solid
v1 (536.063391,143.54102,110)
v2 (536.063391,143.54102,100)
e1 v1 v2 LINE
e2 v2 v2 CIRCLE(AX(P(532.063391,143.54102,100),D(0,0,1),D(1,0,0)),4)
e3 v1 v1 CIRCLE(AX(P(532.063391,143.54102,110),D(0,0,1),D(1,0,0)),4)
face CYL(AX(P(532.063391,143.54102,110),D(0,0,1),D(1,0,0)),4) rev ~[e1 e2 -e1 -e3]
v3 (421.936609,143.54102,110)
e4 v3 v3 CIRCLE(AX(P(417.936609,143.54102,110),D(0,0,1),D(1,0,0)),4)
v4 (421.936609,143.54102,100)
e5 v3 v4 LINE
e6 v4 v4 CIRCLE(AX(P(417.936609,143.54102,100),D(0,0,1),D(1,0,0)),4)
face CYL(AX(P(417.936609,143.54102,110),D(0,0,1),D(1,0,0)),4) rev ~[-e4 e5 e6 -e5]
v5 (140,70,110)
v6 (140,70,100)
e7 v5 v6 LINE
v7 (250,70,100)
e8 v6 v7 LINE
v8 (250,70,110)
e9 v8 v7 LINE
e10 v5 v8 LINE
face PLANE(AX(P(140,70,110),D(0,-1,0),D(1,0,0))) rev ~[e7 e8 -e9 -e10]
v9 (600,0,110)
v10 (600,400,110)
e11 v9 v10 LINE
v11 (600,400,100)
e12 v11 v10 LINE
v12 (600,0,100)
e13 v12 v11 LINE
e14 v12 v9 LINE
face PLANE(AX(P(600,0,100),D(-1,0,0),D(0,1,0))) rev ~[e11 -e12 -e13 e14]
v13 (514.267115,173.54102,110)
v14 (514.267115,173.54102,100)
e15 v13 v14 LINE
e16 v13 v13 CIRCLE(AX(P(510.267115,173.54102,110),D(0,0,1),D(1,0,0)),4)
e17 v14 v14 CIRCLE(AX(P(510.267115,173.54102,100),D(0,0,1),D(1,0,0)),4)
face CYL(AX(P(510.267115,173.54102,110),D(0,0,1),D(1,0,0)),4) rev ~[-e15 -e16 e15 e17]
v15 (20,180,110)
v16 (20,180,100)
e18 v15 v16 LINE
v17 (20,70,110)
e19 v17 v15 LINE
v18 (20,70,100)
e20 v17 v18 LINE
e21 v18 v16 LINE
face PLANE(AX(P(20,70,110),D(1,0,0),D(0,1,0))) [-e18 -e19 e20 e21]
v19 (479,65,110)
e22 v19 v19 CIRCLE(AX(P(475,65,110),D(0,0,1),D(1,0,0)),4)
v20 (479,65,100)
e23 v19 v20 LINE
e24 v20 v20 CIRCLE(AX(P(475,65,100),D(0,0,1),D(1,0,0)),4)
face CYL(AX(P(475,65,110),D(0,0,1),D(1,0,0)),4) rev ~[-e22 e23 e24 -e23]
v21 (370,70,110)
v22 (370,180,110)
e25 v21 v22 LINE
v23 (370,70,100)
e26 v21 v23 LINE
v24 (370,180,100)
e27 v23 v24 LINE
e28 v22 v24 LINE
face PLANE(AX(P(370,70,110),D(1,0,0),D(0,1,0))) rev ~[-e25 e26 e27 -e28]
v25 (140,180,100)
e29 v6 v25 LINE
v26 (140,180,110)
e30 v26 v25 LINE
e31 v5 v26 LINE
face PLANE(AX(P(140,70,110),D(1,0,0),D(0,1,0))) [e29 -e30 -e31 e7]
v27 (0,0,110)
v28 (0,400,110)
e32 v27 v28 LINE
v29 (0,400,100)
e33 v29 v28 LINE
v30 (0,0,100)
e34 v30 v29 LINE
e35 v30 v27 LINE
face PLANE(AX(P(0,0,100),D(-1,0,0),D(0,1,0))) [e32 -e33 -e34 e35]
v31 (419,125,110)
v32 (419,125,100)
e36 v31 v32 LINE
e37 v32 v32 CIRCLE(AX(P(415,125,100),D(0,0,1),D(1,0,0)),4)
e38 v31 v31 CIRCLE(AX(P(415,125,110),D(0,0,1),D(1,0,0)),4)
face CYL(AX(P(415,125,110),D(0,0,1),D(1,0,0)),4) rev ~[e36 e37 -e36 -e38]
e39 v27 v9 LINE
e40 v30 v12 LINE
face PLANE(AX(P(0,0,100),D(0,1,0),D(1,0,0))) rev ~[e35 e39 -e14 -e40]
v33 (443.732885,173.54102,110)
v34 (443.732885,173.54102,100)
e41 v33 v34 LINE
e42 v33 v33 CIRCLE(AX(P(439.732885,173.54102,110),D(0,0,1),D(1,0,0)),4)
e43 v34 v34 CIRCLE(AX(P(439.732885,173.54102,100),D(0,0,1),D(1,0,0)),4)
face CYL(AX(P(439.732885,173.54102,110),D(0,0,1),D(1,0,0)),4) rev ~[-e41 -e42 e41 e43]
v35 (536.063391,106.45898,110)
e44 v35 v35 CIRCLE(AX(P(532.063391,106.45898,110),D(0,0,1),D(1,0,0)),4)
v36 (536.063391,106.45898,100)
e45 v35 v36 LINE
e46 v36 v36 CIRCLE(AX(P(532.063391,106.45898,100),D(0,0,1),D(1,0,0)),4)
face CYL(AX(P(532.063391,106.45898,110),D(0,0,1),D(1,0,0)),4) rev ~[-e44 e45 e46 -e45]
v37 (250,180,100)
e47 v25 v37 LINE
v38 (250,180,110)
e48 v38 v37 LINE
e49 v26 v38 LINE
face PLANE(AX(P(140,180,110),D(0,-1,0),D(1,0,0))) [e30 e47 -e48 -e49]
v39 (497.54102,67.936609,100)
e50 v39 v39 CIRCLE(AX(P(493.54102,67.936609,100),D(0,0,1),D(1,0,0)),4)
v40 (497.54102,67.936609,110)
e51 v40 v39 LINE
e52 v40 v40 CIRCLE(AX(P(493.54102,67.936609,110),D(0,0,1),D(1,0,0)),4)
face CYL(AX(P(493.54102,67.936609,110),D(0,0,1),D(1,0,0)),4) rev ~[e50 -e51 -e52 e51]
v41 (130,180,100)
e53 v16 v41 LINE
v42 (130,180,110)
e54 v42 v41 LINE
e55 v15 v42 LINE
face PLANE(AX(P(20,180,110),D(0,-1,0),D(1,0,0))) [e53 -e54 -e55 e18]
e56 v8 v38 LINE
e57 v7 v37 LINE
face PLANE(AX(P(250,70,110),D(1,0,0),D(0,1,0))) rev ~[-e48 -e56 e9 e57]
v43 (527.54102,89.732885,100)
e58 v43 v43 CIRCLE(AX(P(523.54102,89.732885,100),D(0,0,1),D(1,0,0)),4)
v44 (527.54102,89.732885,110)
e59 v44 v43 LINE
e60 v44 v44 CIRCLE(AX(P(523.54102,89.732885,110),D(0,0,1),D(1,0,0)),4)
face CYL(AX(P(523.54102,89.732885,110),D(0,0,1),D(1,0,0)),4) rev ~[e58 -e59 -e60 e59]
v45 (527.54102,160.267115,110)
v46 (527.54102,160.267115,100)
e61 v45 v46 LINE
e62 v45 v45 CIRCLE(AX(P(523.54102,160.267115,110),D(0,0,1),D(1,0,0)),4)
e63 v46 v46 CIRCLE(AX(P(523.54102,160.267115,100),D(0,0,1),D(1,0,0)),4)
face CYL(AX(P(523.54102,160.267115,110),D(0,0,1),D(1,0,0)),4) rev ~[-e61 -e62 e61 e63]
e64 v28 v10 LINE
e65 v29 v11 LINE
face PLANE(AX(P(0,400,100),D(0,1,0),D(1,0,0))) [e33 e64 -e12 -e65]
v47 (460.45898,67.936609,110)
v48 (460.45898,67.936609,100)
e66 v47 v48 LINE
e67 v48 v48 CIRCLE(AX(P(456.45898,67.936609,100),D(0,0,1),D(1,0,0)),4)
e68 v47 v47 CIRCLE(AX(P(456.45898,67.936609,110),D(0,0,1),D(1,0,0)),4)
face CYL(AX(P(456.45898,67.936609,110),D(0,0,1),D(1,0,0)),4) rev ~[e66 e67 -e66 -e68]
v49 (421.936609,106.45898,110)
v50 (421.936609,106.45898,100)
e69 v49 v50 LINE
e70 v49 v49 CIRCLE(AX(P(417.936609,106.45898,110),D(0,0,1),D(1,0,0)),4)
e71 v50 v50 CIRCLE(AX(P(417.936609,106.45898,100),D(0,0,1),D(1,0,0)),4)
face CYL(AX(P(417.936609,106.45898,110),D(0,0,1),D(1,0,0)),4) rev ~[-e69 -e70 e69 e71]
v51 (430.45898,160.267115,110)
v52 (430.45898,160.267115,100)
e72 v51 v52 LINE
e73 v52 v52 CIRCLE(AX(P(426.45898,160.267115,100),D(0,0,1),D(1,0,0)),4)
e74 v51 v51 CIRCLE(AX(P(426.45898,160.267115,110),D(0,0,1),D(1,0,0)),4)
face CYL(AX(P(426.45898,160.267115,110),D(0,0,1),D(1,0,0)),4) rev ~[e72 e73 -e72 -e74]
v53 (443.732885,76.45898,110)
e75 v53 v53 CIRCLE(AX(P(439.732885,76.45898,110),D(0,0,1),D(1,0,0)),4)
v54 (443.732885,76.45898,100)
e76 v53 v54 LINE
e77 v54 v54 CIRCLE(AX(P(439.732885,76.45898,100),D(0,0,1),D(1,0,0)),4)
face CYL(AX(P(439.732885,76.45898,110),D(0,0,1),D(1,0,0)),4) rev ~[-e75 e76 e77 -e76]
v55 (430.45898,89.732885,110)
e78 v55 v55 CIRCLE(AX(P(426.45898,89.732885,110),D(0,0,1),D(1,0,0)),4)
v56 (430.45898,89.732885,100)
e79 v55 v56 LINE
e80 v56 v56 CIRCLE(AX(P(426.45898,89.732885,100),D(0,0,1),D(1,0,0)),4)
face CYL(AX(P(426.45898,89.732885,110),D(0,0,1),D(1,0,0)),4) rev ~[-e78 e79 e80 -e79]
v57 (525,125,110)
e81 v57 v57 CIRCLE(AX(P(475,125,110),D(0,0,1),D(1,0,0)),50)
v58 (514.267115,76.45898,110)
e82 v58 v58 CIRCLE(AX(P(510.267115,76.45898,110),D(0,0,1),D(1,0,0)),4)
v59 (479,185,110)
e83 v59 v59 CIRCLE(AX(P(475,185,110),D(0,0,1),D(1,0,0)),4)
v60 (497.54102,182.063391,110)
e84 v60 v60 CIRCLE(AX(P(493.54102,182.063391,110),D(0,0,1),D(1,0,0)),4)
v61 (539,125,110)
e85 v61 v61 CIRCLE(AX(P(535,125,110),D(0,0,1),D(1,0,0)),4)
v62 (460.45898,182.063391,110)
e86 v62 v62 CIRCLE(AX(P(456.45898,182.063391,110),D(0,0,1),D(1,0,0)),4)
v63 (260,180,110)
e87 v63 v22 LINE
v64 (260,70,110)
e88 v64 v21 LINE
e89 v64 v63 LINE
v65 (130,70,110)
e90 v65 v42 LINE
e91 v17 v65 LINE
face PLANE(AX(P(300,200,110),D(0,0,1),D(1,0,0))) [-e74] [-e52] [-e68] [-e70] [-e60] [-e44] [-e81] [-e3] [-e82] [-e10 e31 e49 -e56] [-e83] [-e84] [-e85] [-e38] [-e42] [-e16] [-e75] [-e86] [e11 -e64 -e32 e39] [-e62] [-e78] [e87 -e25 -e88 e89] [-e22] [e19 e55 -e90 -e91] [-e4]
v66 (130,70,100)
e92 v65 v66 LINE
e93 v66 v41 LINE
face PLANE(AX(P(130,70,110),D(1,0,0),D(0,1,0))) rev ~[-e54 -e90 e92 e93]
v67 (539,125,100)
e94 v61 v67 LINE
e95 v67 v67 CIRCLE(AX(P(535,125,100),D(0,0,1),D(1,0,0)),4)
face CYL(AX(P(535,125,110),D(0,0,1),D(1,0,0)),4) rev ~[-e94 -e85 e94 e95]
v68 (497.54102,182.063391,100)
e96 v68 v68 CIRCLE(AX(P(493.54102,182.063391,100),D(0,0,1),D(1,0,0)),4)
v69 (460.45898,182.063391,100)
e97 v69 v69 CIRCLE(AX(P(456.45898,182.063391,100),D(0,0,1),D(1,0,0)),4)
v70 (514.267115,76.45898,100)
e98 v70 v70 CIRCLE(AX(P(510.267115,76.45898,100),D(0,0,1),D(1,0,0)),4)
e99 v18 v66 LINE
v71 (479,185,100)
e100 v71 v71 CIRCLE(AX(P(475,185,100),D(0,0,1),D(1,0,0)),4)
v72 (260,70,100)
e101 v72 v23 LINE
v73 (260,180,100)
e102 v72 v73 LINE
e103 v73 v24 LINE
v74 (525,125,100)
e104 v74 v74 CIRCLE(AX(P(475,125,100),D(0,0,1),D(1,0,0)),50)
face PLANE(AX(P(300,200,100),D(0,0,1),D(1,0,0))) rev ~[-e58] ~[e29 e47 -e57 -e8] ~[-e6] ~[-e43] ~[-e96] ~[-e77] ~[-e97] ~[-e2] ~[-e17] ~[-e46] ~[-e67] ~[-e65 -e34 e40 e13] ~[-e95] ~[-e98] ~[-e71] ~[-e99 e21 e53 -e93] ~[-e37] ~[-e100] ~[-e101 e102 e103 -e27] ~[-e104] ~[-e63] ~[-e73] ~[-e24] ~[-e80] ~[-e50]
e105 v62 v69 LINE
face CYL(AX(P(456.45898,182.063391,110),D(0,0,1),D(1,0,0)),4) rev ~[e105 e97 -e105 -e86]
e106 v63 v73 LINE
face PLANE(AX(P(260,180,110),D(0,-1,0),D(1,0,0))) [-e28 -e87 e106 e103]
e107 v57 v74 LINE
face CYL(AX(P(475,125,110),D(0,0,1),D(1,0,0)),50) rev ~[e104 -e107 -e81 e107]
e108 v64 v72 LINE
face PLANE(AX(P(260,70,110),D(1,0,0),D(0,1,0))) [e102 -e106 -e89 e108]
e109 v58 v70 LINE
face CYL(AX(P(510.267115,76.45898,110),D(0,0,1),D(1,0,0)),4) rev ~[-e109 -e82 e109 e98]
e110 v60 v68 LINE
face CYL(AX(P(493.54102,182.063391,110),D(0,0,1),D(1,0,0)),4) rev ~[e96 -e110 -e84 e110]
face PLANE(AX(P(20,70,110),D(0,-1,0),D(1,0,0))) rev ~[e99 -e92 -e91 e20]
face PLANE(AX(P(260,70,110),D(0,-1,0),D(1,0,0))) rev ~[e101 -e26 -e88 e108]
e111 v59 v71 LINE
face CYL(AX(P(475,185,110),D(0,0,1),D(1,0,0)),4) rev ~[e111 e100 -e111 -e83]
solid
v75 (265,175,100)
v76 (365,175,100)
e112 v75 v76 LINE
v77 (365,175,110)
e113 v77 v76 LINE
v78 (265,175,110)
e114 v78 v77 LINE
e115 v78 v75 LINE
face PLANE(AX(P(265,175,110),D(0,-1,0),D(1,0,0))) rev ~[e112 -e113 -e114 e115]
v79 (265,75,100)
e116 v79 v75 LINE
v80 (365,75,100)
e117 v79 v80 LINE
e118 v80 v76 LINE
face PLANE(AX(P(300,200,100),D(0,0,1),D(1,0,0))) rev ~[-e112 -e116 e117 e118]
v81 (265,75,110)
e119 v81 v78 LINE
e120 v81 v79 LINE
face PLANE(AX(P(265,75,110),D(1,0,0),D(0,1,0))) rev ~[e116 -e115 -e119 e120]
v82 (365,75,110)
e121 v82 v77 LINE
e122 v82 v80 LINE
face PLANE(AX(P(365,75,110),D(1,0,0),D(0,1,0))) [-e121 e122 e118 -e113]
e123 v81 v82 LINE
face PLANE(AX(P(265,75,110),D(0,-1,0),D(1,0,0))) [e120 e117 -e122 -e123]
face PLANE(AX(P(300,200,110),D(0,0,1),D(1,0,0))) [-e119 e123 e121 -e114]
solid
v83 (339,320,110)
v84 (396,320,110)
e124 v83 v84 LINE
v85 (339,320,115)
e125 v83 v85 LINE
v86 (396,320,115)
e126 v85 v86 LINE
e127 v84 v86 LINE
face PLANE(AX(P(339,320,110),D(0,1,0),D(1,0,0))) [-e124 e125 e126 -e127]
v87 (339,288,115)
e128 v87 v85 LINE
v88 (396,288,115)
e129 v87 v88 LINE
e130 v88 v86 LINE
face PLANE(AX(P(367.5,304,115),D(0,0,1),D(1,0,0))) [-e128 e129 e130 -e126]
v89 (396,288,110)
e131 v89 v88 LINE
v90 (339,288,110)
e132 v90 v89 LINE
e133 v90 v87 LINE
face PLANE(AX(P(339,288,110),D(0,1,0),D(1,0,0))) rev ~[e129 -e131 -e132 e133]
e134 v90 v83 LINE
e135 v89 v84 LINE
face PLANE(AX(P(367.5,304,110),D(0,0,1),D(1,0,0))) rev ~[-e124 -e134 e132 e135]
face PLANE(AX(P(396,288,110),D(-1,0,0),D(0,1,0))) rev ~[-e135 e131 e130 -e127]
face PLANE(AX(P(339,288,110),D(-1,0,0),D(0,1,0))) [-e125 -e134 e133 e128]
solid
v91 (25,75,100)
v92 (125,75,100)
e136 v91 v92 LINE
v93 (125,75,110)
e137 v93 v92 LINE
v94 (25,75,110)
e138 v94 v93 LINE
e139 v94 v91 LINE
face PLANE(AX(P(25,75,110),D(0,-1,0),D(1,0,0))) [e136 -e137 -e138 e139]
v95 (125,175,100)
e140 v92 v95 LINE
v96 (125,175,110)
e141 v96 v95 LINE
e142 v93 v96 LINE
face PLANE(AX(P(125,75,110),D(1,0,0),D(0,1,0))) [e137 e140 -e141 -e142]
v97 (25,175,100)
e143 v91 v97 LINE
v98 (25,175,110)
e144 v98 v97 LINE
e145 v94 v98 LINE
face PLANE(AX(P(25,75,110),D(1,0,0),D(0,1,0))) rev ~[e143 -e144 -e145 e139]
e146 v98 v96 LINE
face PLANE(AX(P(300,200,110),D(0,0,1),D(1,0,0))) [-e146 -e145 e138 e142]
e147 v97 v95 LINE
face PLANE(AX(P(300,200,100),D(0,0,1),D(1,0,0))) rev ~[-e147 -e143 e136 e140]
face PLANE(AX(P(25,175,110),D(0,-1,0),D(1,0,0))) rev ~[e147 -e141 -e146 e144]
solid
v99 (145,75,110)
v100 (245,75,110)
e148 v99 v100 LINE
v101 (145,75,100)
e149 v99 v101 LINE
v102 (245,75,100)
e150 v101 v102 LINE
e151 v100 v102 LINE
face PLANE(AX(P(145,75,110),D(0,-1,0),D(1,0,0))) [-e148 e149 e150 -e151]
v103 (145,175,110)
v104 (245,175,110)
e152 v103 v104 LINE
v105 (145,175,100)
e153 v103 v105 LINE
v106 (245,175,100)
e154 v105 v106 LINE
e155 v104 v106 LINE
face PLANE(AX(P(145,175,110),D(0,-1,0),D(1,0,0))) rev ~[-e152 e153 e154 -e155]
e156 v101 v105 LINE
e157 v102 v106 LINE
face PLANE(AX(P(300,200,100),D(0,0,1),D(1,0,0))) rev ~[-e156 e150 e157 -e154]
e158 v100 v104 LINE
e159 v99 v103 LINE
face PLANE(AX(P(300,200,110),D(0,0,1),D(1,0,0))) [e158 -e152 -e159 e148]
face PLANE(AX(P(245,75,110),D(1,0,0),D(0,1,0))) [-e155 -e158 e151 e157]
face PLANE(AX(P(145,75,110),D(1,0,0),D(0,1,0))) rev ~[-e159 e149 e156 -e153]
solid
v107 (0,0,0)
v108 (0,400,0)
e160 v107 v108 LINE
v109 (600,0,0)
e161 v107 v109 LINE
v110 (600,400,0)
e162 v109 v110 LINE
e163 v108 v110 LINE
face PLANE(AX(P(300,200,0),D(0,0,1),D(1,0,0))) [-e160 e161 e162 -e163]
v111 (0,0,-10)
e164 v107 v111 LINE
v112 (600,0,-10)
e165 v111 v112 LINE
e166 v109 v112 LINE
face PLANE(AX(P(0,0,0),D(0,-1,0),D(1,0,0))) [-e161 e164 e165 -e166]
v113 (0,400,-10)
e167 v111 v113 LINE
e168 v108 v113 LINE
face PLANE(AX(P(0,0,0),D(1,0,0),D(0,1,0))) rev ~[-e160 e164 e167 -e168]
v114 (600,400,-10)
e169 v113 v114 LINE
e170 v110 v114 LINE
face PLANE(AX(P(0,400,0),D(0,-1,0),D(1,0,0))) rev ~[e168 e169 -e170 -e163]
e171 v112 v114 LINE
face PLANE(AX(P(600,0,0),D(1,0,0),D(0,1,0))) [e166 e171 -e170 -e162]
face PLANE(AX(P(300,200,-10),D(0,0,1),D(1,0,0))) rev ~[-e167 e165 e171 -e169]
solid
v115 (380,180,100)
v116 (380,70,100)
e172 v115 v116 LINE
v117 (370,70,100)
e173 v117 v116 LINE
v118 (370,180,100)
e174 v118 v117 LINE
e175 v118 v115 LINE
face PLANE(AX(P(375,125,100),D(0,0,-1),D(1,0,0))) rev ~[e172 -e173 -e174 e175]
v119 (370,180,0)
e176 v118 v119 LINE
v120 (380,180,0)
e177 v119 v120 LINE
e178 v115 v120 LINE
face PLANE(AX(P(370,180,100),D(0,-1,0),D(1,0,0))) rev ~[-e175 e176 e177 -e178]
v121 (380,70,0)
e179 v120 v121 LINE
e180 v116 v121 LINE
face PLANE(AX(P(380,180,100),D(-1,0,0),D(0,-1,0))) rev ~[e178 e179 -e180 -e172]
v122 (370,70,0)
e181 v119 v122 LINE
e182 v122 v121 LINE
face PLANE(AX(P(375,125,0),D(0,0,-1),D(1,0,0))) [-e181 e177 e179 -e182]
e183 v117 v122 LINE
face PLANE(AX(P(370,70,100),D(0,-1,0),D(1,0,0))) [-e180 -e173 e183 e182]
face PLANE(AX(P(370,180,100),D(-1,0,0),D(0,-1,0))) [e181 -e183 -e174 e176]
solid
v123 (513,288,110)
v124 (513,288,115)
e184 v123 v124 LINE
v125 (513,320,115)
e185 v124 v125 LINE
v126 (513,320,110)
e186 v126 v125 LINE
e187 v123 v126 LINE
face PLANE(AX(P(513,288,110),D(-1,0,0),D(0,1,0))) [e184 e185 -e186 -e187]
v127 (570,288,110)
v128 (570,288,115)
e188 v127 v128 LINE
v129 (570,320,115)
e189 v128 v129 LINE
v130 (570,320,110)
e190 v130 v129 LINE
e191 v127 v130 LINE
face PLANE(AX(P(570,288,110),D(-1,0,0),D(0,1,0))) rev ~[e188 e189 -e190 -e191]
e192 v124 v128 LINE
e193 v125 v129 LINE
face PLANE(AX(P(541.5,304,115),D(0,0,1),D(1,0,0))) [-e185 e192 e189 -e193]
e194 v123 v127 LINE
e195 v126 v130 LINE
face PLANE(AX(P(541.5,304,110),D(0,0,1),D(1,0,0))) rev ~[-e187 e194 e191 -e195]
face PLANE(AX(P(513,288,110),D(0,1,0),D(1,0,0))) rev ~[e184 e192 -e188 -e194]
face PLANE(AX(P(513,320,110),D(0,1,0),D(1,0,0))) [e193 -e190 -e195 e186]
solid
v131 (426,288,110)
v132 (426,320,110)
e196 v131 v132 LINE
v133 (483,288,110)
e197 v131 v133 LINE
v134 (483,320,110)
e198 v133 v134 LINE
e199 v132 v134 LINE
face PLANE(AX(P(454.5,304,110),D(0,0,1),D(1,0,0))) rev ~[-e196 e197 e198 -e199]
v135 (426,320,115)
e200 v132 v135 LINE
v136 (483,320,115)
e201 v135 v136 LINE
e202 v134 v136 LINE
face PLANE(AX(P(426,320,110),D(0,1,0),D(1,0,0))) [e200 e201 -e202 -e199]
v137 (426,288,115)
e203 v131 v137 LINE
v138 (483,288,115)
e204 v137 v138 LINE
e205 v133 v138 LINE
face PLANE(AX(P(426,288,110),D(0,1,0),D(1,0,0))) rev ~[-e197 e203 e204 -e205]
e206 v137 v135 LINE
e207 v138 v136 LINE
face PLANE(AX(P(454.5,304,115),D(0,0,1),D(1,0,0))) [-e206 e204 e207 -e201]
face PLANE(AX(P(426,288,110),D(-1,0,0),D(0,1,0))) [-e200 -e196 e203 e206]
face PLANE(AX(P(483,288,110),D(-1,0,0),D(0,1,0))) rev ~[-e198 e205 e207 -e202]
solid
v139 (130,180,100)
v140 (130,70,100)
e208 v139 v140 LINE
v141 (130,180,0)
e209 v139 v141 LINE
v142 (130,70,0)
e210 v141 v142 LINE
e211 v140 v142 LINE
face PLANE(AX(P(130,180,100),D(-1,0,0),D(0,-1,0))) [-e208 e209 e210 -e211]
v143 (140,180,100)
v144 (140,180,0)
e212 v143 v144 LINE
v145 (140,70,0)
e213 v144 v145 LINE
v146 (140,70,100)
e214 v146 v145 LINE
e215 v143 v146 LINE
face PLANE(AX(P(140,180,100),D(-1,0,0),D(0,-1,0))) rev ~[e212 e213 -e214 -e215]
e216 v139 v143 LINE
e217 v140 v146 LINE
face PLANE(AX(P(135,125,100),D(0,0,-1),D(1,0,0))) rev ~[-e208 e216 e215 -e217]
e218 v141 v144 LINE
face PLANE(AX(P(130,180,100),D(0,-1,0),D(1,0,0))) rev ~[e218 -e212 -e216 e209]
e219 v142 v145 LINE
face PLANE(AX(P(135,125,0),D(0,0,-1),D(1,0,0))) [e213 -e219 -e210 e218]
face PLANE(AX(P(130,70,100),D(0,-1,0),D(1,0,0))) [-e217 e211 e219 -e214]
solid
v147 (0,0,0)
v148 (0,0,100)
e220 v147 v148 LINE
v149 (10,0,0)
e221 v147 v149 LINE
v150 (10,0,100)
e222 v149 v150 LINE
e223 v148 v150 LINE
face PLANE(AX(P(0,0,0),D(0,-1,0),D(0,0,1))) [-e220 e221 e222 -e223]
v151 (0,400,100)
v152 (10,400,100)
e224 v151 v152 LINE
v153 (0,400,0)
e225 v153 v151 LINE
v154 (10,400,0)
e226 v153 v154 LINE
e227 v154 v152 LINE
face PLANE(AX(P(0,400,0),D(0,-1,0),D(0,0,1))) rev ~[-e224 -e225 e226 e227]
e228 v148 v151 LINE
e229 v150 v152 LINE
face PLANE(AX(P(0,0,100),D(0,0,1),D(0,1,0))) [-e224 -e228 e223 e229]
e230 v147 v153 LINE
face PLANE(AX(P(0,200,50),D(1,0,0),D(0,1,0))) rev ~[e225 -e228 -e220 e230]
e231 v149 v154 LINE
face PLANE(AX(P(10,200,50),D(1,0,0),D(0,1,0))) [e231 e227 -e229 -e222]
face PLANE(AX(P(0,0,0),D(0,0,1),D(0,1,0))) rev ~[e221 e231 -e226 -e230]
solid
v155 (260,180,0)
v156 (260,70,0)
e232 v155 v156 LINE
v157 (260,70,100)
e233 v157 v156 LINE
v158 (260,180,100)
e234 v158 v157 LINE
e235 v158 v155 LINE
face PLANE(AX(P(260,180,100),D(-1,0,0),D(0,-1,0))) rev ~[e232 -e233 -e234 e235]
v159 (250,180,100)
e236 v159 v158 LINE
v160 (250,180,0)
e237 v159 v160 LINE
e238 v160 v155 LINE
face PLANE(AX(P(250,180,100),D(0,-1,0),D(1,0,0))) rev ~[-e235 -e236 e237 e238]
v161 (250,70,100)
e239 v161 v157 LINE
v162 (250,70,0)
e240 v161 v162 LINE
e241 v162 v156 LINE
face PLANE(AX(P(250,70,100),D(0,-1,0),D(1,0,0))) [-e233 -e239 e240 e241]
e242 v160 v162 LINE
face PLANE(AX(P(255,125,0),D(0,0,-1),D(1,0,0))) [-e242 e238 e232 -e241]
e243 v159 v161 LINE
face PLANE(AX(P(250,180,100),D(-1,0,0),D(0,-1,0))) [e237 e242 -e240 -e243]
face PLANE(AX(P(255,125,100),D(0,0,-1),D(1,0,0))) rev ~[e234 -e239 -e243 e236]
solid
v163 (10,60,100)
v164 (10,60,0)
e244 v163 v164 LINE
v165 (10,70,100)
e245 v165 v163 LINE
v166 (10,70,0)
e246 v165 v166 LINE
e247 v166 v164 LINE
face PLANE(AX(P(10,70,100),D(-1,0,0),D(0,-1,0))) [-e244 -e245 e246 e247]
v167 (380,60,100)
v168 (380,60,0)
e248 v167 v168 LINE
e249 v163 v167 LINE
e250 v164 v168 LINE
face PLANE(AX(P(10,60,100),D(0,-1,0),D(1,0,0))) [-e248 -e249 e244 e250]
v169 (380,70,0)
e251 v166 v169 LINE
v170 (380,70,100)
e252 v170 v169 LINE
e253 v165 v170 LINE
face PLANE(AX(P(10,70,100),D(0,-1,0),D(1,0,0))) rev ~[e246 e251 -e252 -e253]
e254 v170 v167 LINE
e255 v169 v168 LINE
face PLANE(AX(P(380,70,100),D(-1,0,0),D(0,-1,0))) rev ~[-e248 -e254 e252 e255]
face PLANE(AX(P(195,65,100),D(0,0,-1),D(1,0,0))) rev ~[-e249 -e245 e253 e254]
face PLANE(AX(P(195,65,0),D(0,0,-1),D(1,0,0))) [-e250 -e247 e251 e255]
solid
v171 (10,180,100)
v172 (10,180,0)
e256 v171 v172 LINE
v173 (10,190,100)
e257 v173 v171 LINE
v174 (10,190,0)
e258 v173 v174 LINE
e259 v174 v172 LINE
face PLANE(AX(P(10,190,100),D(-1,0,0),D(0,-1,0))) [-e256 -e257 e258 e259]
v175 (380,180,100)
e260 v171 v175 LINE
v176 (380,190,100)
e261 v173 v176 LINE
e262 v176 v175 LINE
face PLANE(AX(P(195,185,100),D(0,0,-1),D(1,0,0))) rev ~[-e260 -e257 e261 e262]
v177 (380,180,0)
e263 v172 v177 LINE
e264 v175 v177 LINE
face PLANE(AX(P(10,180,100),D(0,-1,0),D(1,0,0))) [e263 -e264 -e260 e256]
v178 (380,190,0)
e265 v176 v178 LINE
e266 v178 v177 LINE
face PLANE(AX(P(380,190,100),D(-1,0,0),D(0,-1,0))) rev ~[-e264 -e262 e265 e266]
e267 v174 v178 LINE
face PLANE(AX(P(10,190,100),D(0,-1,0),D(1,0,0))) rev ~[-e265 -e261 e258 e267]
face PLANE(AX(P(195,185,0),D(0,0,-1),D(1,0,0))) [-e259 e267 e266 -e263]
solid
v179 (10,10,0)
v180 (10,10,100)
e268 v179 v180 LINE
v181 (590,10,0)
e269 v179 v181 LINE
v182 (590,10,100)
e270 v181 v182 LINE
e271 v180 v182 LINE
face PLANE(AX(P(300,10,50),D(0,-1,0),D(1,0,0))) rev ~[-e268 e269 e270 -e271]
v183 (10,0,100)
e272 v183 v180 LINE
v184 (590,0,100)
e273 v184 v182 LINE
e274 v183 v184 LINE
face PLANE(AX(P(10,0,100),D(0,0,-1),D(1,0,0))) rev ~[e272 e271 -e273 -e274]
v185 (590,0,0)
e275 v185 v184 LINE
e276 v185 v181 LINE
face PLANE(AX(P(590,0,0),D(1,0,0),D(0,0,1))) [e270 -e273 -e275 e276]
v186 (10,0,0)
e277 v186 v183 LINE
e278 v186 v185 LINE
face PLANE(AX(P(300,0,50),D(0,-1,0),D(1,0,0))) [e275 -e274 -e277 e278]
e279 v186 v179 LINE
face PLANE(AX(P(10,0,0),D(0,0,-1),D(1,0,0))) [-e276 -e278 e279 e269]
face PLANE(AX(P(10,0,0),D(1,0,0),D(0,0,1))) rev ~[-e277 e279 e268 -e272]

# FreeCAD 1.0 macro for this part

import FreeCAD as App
import Part
import Sketcher

V = App.Vector
Q = App.Units.Quantity

doc = App.newDocument("Part")
body = doc.addObject("PartDesign::Body", "Body")

sketch1 = body.newObject("Sketcher::SketchObject", "Sketch")
sketch1.AttachmentSupport = (doc.getObject("XY_Plane"), [""])
sketch1.MapMode = "FlatFace"
sketch1.addGeometry([
    Part.LineSegment(V(0, 400, 0), V(0, 0, 0)),
    Part.LineSegment(V(0, 0, 0), V(600, 0, 0)),
    Part.LineSegment(V(600, 0, 0), V(600, 400, 0)),
    Part.LineSegment(V(600, 400, 0), V(0, 400, 0)),
], False)
sketch1.addConstraint([
    Sketcher.Constraint("Coincident", 0, 2, 1, 1),
    Sketcher.Constraint("Coincident", 1, 2, 2, 1),
    Sketcher.Constraint("Coincident", 2, 2, 3, 1),
    Sketcher.Constraint("Coincident", 3, 2, 0, 1),
    Sketcher.Constraint("Vertical", 0),
    Sketcher.Constraint("Horizontal", 1),
    Sketcher.Constraint("Vertical", 2),
    Sketcher.Constraint("Horizontal", 3),
    Sketcher.Constraint("Coincident", 0, 2, -1, 1),
    Sketcher.Constraint("DistanceX", 1, 1, 1, 2, Q("600 mm")),
    Sketcher.Constraint("DistanceY", 0, 2, 0, 1, Q("400 mm")),
])
pad1 = body.newObject("PartDesign::Pad", "Pad")
pad1.Profile = sketch1
pad1.Length = 10
pad1.Reversed = True
body2 = doc.addObject("PartDesign::Body", "Body001")

sketch2 = body2.newObject("Sketcher::SketchObject", "Sketch001")
sketch2.AttachmentSupport = (doc.getObject("YZ_Plane001"), [""])
sketch2.MapMode = "FlatFace"
sketch2.addGeometry([
    Part.LineSegment(V(0, 100, 0), V(0, 0, 0)),
    Part.LineSegment(V(0, 0, 0), V(400, 0, 0)),
    Part.LineSegment(V(400, 0, 0), V(400, 100, 0)),
    Part.LineSegment(V(400, 100, 0), V(0, 100, 0)),
], False)
sketch2.addConstraint([
    Sketcher.Constraint("Coincident", 0, 2, 1, 1),
    Sketcher.Constraint("Coincident", 1, 2, 2, 1),
    Sketcher.Constraint("Coincident", 2, 2, 3, 1),
    Sketcher.Constraint("Coincident", 3, 2, 0, 1),
    Sketcher.Constraint("Vertical", 0),
    Sketcher.Constraint("Horizontal", 1),
    Sketcher.Constraint("Vertical", 2),
    Sketcher.Constraint("Horizontal", 3),
    Sketcher.Constraint("Coincident", 0, 2, -1, 1),
    Sketcher.Constraint("DistanceX", 1, 1, 1, 2, Q("400 mm")),
    Sketcher.Constraint("DistanceY", 0, 2, 0, 1, Q("100 mm")),
])
pad2 = body2.newObject("PartDesign::Pad", "Pad001")
pad2.Profile = sketch2
pad2.Length = 10
body3 = doc.addObject("PartDesign::Body", "Body002")

sketch3 = body3.newObject("Sketcher::SketchObject", "Sketch002")
sketch3.AttachmentSupport = (doc.getObject("XZ_Plane002"), [""])
sketch3.MapMode = "FlatFace"
sketch3.addGeometry([
    Part.LineSegment(V(10, 100, 0), V(10, 0, 0)),
    Part.LineSegment(V(10, 0, 0), V(590, 0, 0)),
    Part.LineSegment(V(590, 0, 0), V(590, 100, 0)),
    Part.LineSegment(V(590, 100, 0), V(10, 100, 0)),
], False)
sketch3.addConstraint([
    Sketcher.Constraint("Coincident", 0, 2, 1, 1),
    Sketcher.Constraint("Coincident", 1, 2, 2, 1),
    Sketcher.Constraint("Coincident", 2, 2, 3, 1),
    Sketcher.Constraint("Coincident", 3, 2, 0, 1),
    Sketcher.Constraint("Vertical", 0),
    Sketcher.Constraint("Horizontal", 1),
    Sketcher.Constraint("Vertical", 2),
    Sketcher.Constraint("Horizontal", 3),
    Sketcher.Constraint("PointOnObject", 0, 2, -1),
    Sketcher.Constraint("DistanceX", 1, 1, 1, 2, Q("580 mm")),
    Sketcher.Constraint("DistanceY", 0, 2, 0, 1, Q("100 mm")),
    Sketcher.Constraint("DistanceX", -1, 1, 0, 2, Q("10 mm")),
])
pad3 = body3.newObject("PartDesign::Pad", "Pad002")
pad3.Profile = sketch3
pad3.Length = 10
pad3.Reversed = True
body4 = doc.addObject("PartDesign::Body", "Body003")
body4.AllowCompound = True

sketch4 = body4.newObject("Sketcher::SketchObject", "Sketch003")
sketch4.AttachmentSupport = (doc.getObject("XY_Plane003"), [""])
sketch4.MapMode = "FlatFace"
sketch4.AttachmentOffset = App.Placement(V(0, 0, 100), App.Rotation())
sketch4.addGeometry([
    Part.LineSegment(V(0, 400, 0), V(0, 0, 0)),
    Part.LineSegment(V(0, 0, 0), V(600, 0, 0)),
    Part.LineSegment(V(600, 0, 0), V(600, 400, 0)),
    Part.LineSegment(V(600, 400, 0), V(0, 400, 0)),
], False)
sketch4.addConstraint([
    Sketcher.Constraint("Coincident", 0, 2, 1, 1),
    Sketcher.Constraint("Coincident", 1, 2, 2, 1),
    Sketcher.Constraint("Coincident", 2, 2, 3, 1),
    Sketcher.Constraint("Coincident", 3, 2, 0, 1),
    Sketcher.Constraint("Vertical", 0),
    Sketcher.Constraint("Horizontal", 1),
    Sketcher.Constraint("Vertical", 2),
    Sketcher.Constraint("Horizontal", 3),
    Sketcher.Constraint("Coincident", 0, 2, -1, 1),
    Sketcher.Constraint("DistanceX", 1, 1, 1, 2, Q("600 mm")),
    Sketcher.Constraint("DistanceY", 0, 2, 0, 1, Q("400 mm")),
])
pad4 = body4.newObject("PartDesign::Pad", "Pad003")
pad4.Profile = sketch4
pad4.Length = 10

sketch5 = body4.newObject("Sketcher::SketchObject", "Sketch004")
sketch5.AttachmentSupport = (doc.getObject("XY_Plane003"), [""])
sketch5.MapMode = "FlatFace"
sketch5.AttachmentOffset = App.Placement(V(0, 0, 110), App.Rotation())
sketch5.addGeometry([
    Part.LineSegment(V(20, 180, 0), V(20, 70, 0)),
    Part.LineSegment(V(20, 70, 0), V(130, 70, 0)),
    Part.LineSegment(V(130, 70, 0), V(130, 180, 0)),
    Part.LineSegment(V(130, 180, 0), V(20, 180, 0)),
    Part.LineSegment(V(125, 75, 0), V(25, 75, 0)),
    Part.LineSegment(V(25, 75, 0), V(25, 175, 0)),
    Part.LineSegment(V(25, 175, 0), V(125, 175, 0)),
    Part.LineSegment(V(125, 175, 0), V(125, 75, 0)),
    Part.LineSegment(V(140, 180, 0), V(140, 70, 0)),
    Part.LineSegment(V(140, 70, 0), V(250, 70, 0)),
    Part.LineSegment(V(250, 70, 0), V(250, 180, 0)),
    Part.LineSegment(V(250, 180, 0), V(140, 180, 0)),
    Part.LineSegment(V(245, 75, 0), V(145, 75, 0)),
    Part.LineSegment(V(145, 75, 0), V(145, 175, 0)),
    Part.LineSegment(V(145, 175, 0), V(245, 175, 0)),
    Part.LineSegment(V(245, 175, 0), V(245, 75, 0)),
    Part.LineSegment(V(260, 180, 0), V(260, 70, 0)),
    Part.LineSegment(V(260, 70, 0), V(370, 70, 0)),
    Part.LineSegment(V(370, 70, 0), V(370, 180, 0)),
    Part.LineSegment(V(370, 180, 0), V(260, 180, 0)),
    Part.LineSegment(V(365, 75, 0), V(265, 75, 0)),
    Part.LineSegment(V(265, 75, 0), V(265, 175, 0)),
    Part.LineSegment(V(265, 175, 0), V(365, 175, 0)),
    Part.LineSegment(V(365, 175, 0), V(365, 75, 0)),
], False)
sketch5.addConstraint([
    Sketcher.Constraint("Coincident", 0, 2, 1, 1),
    Sketcher.Constraint("Coincident", 1, 2, 2, 1),
    Sketcher.Constraint("Coincident", 2, 2, 3, 1),
    Sketcher.Constraint("Coincident", 3, 2, 0, 1),
    Sketcher.Constraint("Coincident", 4, 2, 5, 1),
    Sketcher.Constraint("Coincident", 5, 2, 6, 1),
    Sketcher.Constraint("Coincident", 6, 2, 7, 1),
    Sketcher.Constraint("Coincident", 7, 2, 4, 1),
    Sketcher.Constraint("Coincident", 8, 2, 9, 1),
    Sketcher.Constraint("Coincident", 9, 2, 10, 1),
    Sketcher.Constraint("Coincident", 10, 2, 11, 1),
    Sketcher.Constraint("Coincident", 11, 2, 8, 1),
    Sketcher.Constraint("Coincident", 12, 2, 13, 1),
    Sketcher.Constraint("Coincident", 13, 2, 14, 1),
    Sketcher.Constraint("Coincident", 14, 2, 15, 1),
    Sketcher.Constraint("Coincident", 15, 2, 12, 1),
    Sketcher.Constraint("Coincident", 16, 2, 17, 1),
    Sketcher.Constraint("Coincident", 17, 2, 18, 1),
    Sketcher.Constraint("Coincident", 18, 2, 19, 1),
    Sketcher.Constraint("Coincident", 19, 2, 16, 1),
    Sketcher.Constraint("Coincident", 20, 2, 21, 1),
    Sketcher.Constraint("Coincident", 21, 2, 22, 1),
    Sketcher.Constraint("Coincident", 22, 2, 23, 1),
    Sketcher.Constraint("Coincident", 23, 2, 20, 1),
    Sketcher.Constraint("Vertical", 0),
    Sketcher.Constraint("Horizontal", 1),
    Sketcher.Constraint("Vertical", 2),
    Sketcher.Constraint("Horizontal", 3),
    Sketcher.Constraint("Horizontal", 4),
    Sketcher.Constraint("Vertical", 5),
    Sketcher.Constraint("Horizontal", 6),
    Sketcher.Constraint("Vertical", 7),
    Sketcher.Constraint("Vertical", 8),
    Sketcher.Constraint("Horizontal", 9),
    Sketcher.Constraint("Vertical", 10),
    Sketcher.Constraint("Horizontal", 11),
    Sketcher.Constraint("Horizontal", 12),
    Sketcher.Constraint("Vertical", 13),
    Sketcher.Constraint("Horizontal", 14),
    Sketcher.Constraint("Vertical", 15),
    Sketcher.Constraint("Vertical", 16),
    Sketcher.Constraint("Horizontal", 17),
    Sketcher.Constraint("Vertical", 18),
    Sketcher.Constraint("Horizontal", 19),
    Sketcher.Constraint("Horizontal", 20),
    Sketcher.Constraint("Vertical", 21),
    Sketcher.Constraint("Horizontal", 22),
    Sketcher.Constraint("Vertical", 23),
    Sketcher.Constraint("Horizontal", 1, 2, 8, 2),
    Sketcher.Constraint("Horizontal", 3, 2, 10, 2),
    Sketcher.Constraint("Horizontal", 7, 2, 12, 2),
    Sketcher.Constraint("Horizontal", 6, 2, 13, 2),
    Sketcher.Constraint("Horizontal", 9, 2, 16, 2),
    Sketcher.Constraint("Horizontal", 11, 2, 18, 2),
    Sketcher.Constraint("Horizontal", 15, 2, 20, 2),
    Sketcher.Constraint("Horizontal", 14, 2, 21, 2),
    Sketcher.Constraint("Equal", 3, 9),
    Sketcher.Constraint("Equal", 6, 12),
    Sketcher.Constraint("Equal", 11, 17),
    Sketcher.Constraint("Equal", 14, 20),
    Sketcher.Constraint("Equal", 19, 0),
    Sketcher.Constraint("Equal", 22, 5),
    Sketcher.Constraint("DistanceX", 1, 1, 1, 2, Q("110 mm")),
    Sketcher.Constraint("DistanceX", 4, 2, 4, 1, Q("100 mm")),
    Sketcher.Constraint("DistanceX", -1, 1, 0, 2, Q("20 mm")),
    Sketcher.Constraint("DistanceY", -1, 1, 0, 2, Q("70 mm")),
    Sketcher.Constraint("DistanceX", -1, 1, 4, 2, Q("25 mm")),
    Sketcher.Constraint("DistanceY", -1, 1, 4, 2, Q("75 mm")),
    Sketcher.Constraint("DistanceX", -1, 1, 8, 2, Q("140 mm")),
    Sketcher.Constraint("DistanceX", -1, 1, 12, 2, Q("145 mm")),
    Sketcher.Constraint("DistanceX", -1, 1, 16, 2, Q("260 mm")),
    Sketcher.Constraint("DistanceX", -1, 1, 20, 2, Q("265 mm")),
])
pocket1 = body4.newObject("PartDesign::Pocket", "Pocket")
pocket1.Profile = sketch5
pocket1.Type = "ThroughAll"

sketch6 = body4.newObject("Sketcher::SketchObject", "Sketch005")
sketch6.AttachmentSupport = (doc.getObject("XY_Plane003"), [""])
sketch6.MapMode = "FlatFace"
sketch6.AttachmentOffset = App.Placement(V(0, 0, 110), App.Rotation())
sketch6.addGeometry([
    Part.Circle(V(475, 125, 0), V(0, 0, 1), 50),
    Part.Circle(V(415, 125, 0), V(0, 0, 1), 4),
    Part.Circle(V(417.936609, 106.45898, 0), V(0, 0, 1), 4),
    Part.Circle(V(426.45898, 89.732885, 0), V(0, 0, 1), 4),
    Part.Circle(V(439.732885, 76.45898, 0), V(0, 0, 1), 4),
    Part.Circle(V(456.45898, 67.936609, 0), V(0, 0, 1), 4),
    Part.Circle(V(475, 65, 0), V(0, 0, 1), 4),
    Part.Circle(V(493.54102, 67.936609, 0), V(0, 0, 1), 4),
    Part.Circle(V(510.267115, 76.45898, 0), V(0, 0, 1), 4),
    Part.Circle(V(523.54102, 89.732885, 0), V(0, 0, 1), 4),
    Part.Circle(V(532.063391, 106.45898, 0), V(0, 0, 1), 4),
    Part.Circle(V(523.54102, 160.267115, 0), V(0, 0, 1), 4),
    Part.Circle(V(510.267115, 173.54102, 0), V(0, 0, 1), 4),
    Part.Circle(V(493.54102, 182.063391, 0), V(0, 0, 1), 4),
    Part.Circle(V(475, 185, 0), V(0, 0, 1), 4),
    Part.Circle(V(456.45898, 182.063391, 0), V(0, 0, 1), 4),
    Part.Circle(V(439.732885, 173.54102, 0), V(0, 0, 1), 4),
    Part.Circle(V(426.45898, 160.267115, 0), V(0, 0, 1), 4),
    Part.Circle(V(417.936609, 143.54102, 0), V(0, 0, 1), 4),
    Part.Circle(V(535, 125, 0), V(0, 0, 1), 4),
    Part.Circle(V(532.063391, 143.54102, 0), V(0, 0, 1), 4),
], False)
sketch6.addConstraint([
    Sketcher.Constraint("Equal", 1, 2),
    Sketcher.Constraint("Equal", 2, 3),
    Sketcher.Constraint("Equal", 3, 4),
    Sketcher.Constraint("Equal", 4, 5),
    Sketcher.Constraint("Equal", 5, 6),
    Sketcher.Constraint("Equal", 6, 7),
    Sketcher.Constraint("Equal", 7, 8),
    Sketcher.Constraint("Equal", 8, 9),
    Sketcher.Constraint("Equal", 9, 10),
    Sketcher.Constraint("Equal", 10, 11),
    Sketcher.Constraint("Equal", 11, 12),
    Sketcher.Constraint("Equal", 12, 13),
    Sketcher.Constraint("Equal", 13, 14),
    Sketcher.Constraint("Equal", 14, 15),
    Sketcher.Constraint("Equal", 15, 16),
    Sketcher.Constraint("Equal", 16, 17),
    Sketcher.Constraint("Equal", 17, 18),
    Sketcher.Constraint("Equal", 18, 19),
    Sketcher.Constraint("Equal", 19, 20),
    Sketcher.Constraint("Horizontal", 0, 3, 1, 3),
    Sketcher.Constraint("Horizontal", 5, 3, 7, 3),
    Sketcher.Constraint("Horizontal", 4, 3, 8, 3),
    Sketcher.Constraint("Horizontal", 3, 3, 9, 3),
    Sketcher.Constraint("Horizontal", 2, 3, 10, 3),
    Sketcher.Constraint("Horizontal", 13, 3, 15, 3),
    Sketcher.Constraint("Horizontal", 12, 3, 16, 3),
    Sketcher.Constraint("Horizontal", 11, 3, 17, 3),
    Sketcher.Constraint("Horizontal", 1, 3, 19, 3),
    Sketcher.Constraint("Horizontal", 18, 3, 20, 3),
    Sketcher.Constraint("Vertical", 0, 3, 6, 3),
    Sketcher.Constraint("Vertical", 9, 3, 11, 3),
    Sketcher.Constraint("Vertical", 8, 3, 12, 3),
    Sketcher.Constraint("Vertical", 7, 3, 13, 3),
    Sketcher.Constraint("Vertical", 6, 3, 14, 3),
    Sketcher.Constraint("Vertical", 5, 3, 15, 3),
    Sketcher.Constraint("Vertical", 4, 3, 16, 3),
    Sketcher.Constraint("Vertical", 3, 3, 17, 3),
    Sketcher.Constraint("Vertical", 2, 3, 18, 3),
    Sketcher.Constraint("Vertical", 10, 3, 20, 3),
    Sketcher.Constraint("Diameter", 0, Q("100 mm")),
    Sketcher.Constraint("Diameter", 1, Q("8 mm")),
    Sketcher.Constraint("DistanceX", -1, 1, 0, 3, Q("475 mm")),
    Sketcher.Constraint("DistanceY", -1, 1, 0, 3, Q("125 mm")),
    Sketcher.Constraint("DistanceX", -1, 1, 1, 3, Q("415 mm")),
    Sketcher.Constraint("DistanceY", -1, 1, 6, 3, Q("65 mm")),
    Sketcher.Constraint("DistanceY", -1, 1, 14, 3, Q("185 mm")),
    Sketcher.Constraint("DistanceX", -1, 1, 19, 3, Q("535 mm")),
    Sketcher.Constraint("DistanceY", 4, 3, 2, 3, Q("30 mm")),
    Sketcher.Constraint("DistanceX", 3, 3, 5, 3, Q("30 mm")),
    Sketcher.Constraint("DistanceX", 7, 3, 9, 3, Q("30 mm")),
    Sketcher.Constraint("DistanceY", 18, 3, 16, 3, Q("30 mm")),
    Sketcher.Constraint("DistanceX", -1, 1, 2, 3, Q("417.936609 mm")),
    Sketcher.Constraint("DistanceY", -1, 1, 2, 3, Q("106.45898 mm")),
    Sketcher.Constraint("DistanceX", -1, 1, 3, 3, Q("426.45898 mm")),
    Sketcher.Constraint("DistanceY", -1, 1, 5, 3, Q("67.936609 mm")),
    Sketcher.Constraint("DistanceX", -1, 1, 7, 3, Q("493.54102 mm")),
    Sketcher.Constraint("DistanceX", -1, 1, 10, 3, Q("532.063391 mm")),
    Sketcher.Constraint("DistanceY", -1, 1, 12, 3, Q("173.54102 mm")),
    Sketcher.Constraint("DistanceY", -1, 1, 13, 3, Q("182.063391 mm")),
    Sketcher.Constraint("DistanceX", 4, 3, 8, 3, Q("70.53423 mm")),
    Sketcher.Constraint("DistanceY", 9, 3, 11, 3, Q("70.53423 mm")),
    Sketcher.Constraint("DistanceY", -1, 1, 3, 3, Q("89.732885 mm")),
    Sketcher.Constraint("DistanceX", -1, 1, 4, 3, Q("439.732885 mm")),
])
pocket2 = body4.newObject("PartDesign::Pocket", "Pocket001")
pocket2.Profile = sketch6
pocket2.Type = "ThroughAll"
body5 = doc.addObject("PartDesign::Body", "Body004")

sketch7 = body5.newObject("Sketcher::SketchObject", "Sketch006")
sketch7.AttachmentSupport = (doc.getObject("XY_Plane004"), [""])
sketch7.MapMode = "FlatFace"
sketch7.AttachmentOffset = App.Placement(V(0, 0, 100), App.Rotation())
sketch7.addGeometry([
    Part.LineSegment(V(130, 70, 0), V(130, 180, 0)),
    Part.LineSegment(V(130, 180, 0), V(140, 180, 0)),
    Part.LineSegment(V(140, 180, 0), V(140, 70, 0)),
    Part.LineSegment(V(140, 70, 0), V(130, 70, 0)),
], False)
sketch7.addConstraint([
    Sketcher.Constraint("Coincident", 0, 2, 1, 1),
    Sketcher.Constraint("Coincident", 1, 2, 2, 1),
    Sketcher.Constraint("Coincident", 2, 2, 3, 1),
    Sketcher.Constraint("Coincident", 3, 2, 0, 1),
    Sketcher.Constraint("Vertical", 0),
    Sketcher.Constraint("Horizontal", 1),
    Sketcher.Constraint("Vertical", 2),
    Sketcher.Constraint("Horizontal", 3),
    Sketcher.Constraint("DistanceX", 1, 1, 1, 2, Q("10 mm")),
    Sketcher.Constraint("DistanceY", 0, 1, 0, 2, Q("110 mm")),
    Sketcher.Constraint("DistanceX", -1, 1, 0, 2, Q("130 mm")),
    Sketcher.Constraint("DistanceY", -1, 1, 0, 2, Q("180 mm")),
])
pad5 = body5.newObject("PartDesign::Pad", "Pad004")
pad5.Profile = sketch7
pad5.Length = 100
pad5.Reversed = True
body6 = doc.addObject("PartDesign::Body", "Body005")

sketch8 = body6.newObject("Sketcher::SketchObject", "Sketch007")
sketch8.AttachmentSupport = (doc.getObject("XY_Plane005"), [""])
sketch8.MapMode = "FlatFace"
sketch8.AttachmentOffset = App.Placement(V(0, 0, 100), App.Rotation())
sketch8.addGeometry([
    Part.LineSegment(V(250, 70, 0), V(250, 180, 0)),
    Part.LineSegment(V(250, 180, 0), V(260, 180, 0)),
    Part.LineSegment(V(260, 180, 0), V(260, 70, 0)),
    Part.LineSegment(V(260, 70, 0), V(250, 70, 0)),
], False)
sketch8.addConstraint([
    Sketcher.Constraint("Coincident", 0, 2, 1, 1),
    Sketcher.Constraint("Coincident", 1, 2, 2, 1),
    Sketcher.Constraint("Coincident", 2, 2, 3, 1),
    Sketcher.Constraint("Coincident", 3, 2, 0, 1),
    Sketcher.Constraint("Vertical", 0),
    Sketcher.Constraint("Horizontal", 1),
    Sketcher.Constraint("Vertical", 2),
    Sketcher.Constraint("Horizontal", 3),
    Sketcher.Constraint("DistanceX", 1, 1, 1, 2, Q("10 mm")),
    Sketcher.Constraint("DistanceY", 0, 1, 0, 2, Q("110 mm")),
    Sketcher.Constraint("DistanceX", -1, 1, 0, 2, Q("250 mm")),
    Sketcher.Constraint("DistanceY", -1, 1, 0, 2, Q("180 mm")),
])
pad6 = body6.newObject("PartDesign::Pad", "Pad005")
pad6.Profile = sketch8
pad6.Length = 100
pad6.Reversed = True
body7 = doc.addObject("PartDesign::Body", "Body006")

sketch9 = body7.newObject("Sketcher::SketchObject", "Sketch008")
sketch9.AttachmentSupport = (doc.getObject("XY_Plane006"), [""])
sketch9.MapMode = "FlatFace"
sketch9.AttachmentOffset = App.Placement(V(0, 0, 100), App.Rotation())
sketch9.addGeometry([
    Part.LineSegment(V(370, 70, 0), V(370, 180, 0)),
    Part.LineSegment(V(370, 180, 0), V(380, 180, 0)),
    Part.LineSegment(V(380, 180, 0), V(380, 70, 0)),
    Part.LineSegment(V(380, 70, 0), V(370, 70, 0)),
], False)
sketch9.addConstraint([
    Sketcher.Constraint("Coincident", 0, 2, 1, 1),
    Sketcher.Constraint("Coincident", 1, 2, 2, 1),
    Sketcher.Constraint("Coincident", 2, 2, 3, 1),
    Sketcher.Constraint("Coincident", 3, 2, 0, 1),
    Sketcher.Constraint("Vertical", 0),
    Sketcher.Constraint("Horizontal", 1),
    Sketcher.Constraint("Vertical", 2),
    Sketcher.Constraint("Horizontal", 3),
    Sketcher.Constraint("DistanceX", 1, 1, 1, 2, Q("10 mm")),
    Sketcher.Constraint("DistanceY", 0, 1, 0, 2, Q("110 mm")),
    Sketcher.Constraint("DistanceX", -1, 1, 0, 2, Q("370 mm")),
    Sketcher.Constraint("DistanceY", -1, 1, 0, 2, Q("180 mm")),
])
pad7 = body7.newObject("PartDesign::Pad", "Pad006")
pad7.Profile = sketch9
pad7.Length = 100
pad7.Reversed = True
body8 = doc.addObject("PartDesign::Body", "Body007")

sketch10 = body8.newObject("Sketcher::SketchObject", "Sketch009")
sketch10.AttachmentSupport = (doc.getObject("XY_Plane007"), [""])
sketch10.MapMode = "FlatFace"
sketch10.AttachmentOffset = App.Placement(V(0, 0, 100), App.Rotation())
sketch10.addGeometry([
    Part.LineSegment(V(10, 180, 0), V(10, 190, 0)),
    Part.LineSegment(V(10, 190, 0), V(380, 190, 0)),
    Part.LineSegment(V(380, 190, 0), V(380, 180, 0)),
    Part.LineSegment(V(380, 180, 0), V(10, 180, 0)),
], False)
sketch10.addConstraint([
    Sketcher.Constraint("Coincident", 0, 2, 1, 1),
    Sketcher.Constraint("Coincident", 1, 2, 2, 1),
    Sketcher.Constraint("Coincident", 2, 2, 3, 1),
    Sketcher.Constraint("Coincident", 3, 2, 0, 1),
    Sketcher.Constraint("Vertical", 0),
    Sketcher.Constraint("Horizontal", 1),
    Sketcher.Constraint("Vertical", 2),
    Sketcher.Constraint("Horizontal", 3),
    Sketcher.Constraint("DistanceX", 1, 1, 1, 2, Q("370 mm")),
    Sketcher.Constraint("DistanceY", 0, 1, 0, 2, Q("10 mm")),
    Sketcher.Constraint("DistanceX", -1, 1, 0, 2, Q("10 mm")),
    Sketcher.Constraint("DistanceY", -1, 1, 0, 2, Q("190 mm")),
])
pad8 = body8.newObject("PartDesign::Pad", "Pad007")
pad8.Profile = sketch10
pad8.Length = 100
pad8.Reversed = True
body9 = doc.addObject("PartDesign::Body", "Body008")

sketch11 = body9.newObject("Sketcher::SketchObject", "Sketch010")
sketch11.AttachmentSupport = (doc.getObject("XY_Plane008"), [""])
sketch11.MapMode = "FlatFace"
sketch11.AttachmentOffset = App.Placement(V(0, 0, 100), App.Rotation())
sketch11.addGeometry([
    Part.LineSegment(V(10, 60, 0), V(10, 70, 0)),
    Part.LineSegment(V(10, 70, 0), V(380, 70, 0)),
    Part.LineSegment(V(380, 70, 0), V(380, 60, 0)),
    Part.LineSegment(V(380, 60, 0), V(10, 60, 0)),
], False)
sketch11.addConstraint([
    Sketcher.Constraint("Coincident", 0, 2, 1, 1),
    Sketcher.Constraint("Coincident", 1, 2, 2, 1),
    Sketcher.Constraint("Coincident", 2, 2, 3, 1),
    Sketcher.Constraint("Coincident", 3, 2, 0, 1),
    Sketcher.Constraint("Vertical", 0),
    Sketcher.Constraint("Horizontal", 1),
    Sketcher.Constraint("Vertical", 2),
    Sketcher.Constraint("Horizontal", 3),
    Sketcher.Constraint("DistanceX", 1, 1, 1, 2, Q("370 mm")),
    Sketcher.Constraint("DistanceY", 0, 1, 0, 2, Q("10 mm")),
    Sketcher.Constraint("DistanceX", -1, 1, 0, 2, Q("10 mm")),
    Sketcher.Constraint("DistanceY", -1, 1, 0, 2, Q("70 mm")),
])
pad9 = body9.newObject("PartDesign::Pad", "Pad008")
pad9.Profile = sketch11
pad9.Length = 100
pad9.Reversed = True
body10 = doc.addObject("PartDesign::Body", "Body009")

sketch12 = body10.newObject("Sketcher::SketchObject", "Sketch011")
sketch12.AttachmentSupport = (doc.getObject("XY_Plane009"), [""])
sketch12.MapMode = "FlatFace"
sketch12.AttachmentOffset = App.Placement(V(0, 0, 110), App.Rotation())
sketch12.addGeometry([
    Part.LineSegment(V(513, 320, 0), V(513, 288, 0)),
    Part.LineSegment(V(513, 288, 0), V(570, 288, 0)),
    Part.LineSegment(V(570, 288, 0), V(570, 320, 0)),
    Part.LineSegment(V(570, 320, 0), V(513, 320, 0)),
], False)
sketch12.addConstraint([
    Sketcher.Constraint("Coincident", 0, 2, 1, 1),
    Sketcher.Constraint("Coincident", 1, 2, 2, 1),
    Sketcher.Constraint("Coincident", 2, 2, 3, 1),
    Sketcher.Constraint("Coincident", 3, 2, 0, 1),
    Sketcher.Constraint("Vertical", 0),
    Sketcher.Constraint("Horizontal", 1),
    Sketcher.Constraint("Vertical", 2),
    Sketcher.Constraint("Horizontal", 3),
    Sketcher.Constraint("DistanceX", 1, 1, 1, 2, Q("57 mm")),
    Sketcher.Constraint("DistanceY", 0, 2, 0, 1, Q("32 mm")),
    Sketcher.Constraint("DistanceX", -1, 1, 0, 2, Q("513 mm")),
    Sketcher.Constraint("DistanceY", -1, 1, 0, 2, Q("288 mm")),
])
pad10 = body10.newObject("PartDesign::Pad", "Pad009")
pad10.Profile = sketch12
pad10.Length = 5
body11 = doc.addObject("PartDesign::Body", "Body010")

sketch13 = body11.newObject("Sketcher::SketchObject", "Sketch012")
sketch13.AttachmentSupport = (doc.getObject("XY_Plane010"), [""])
sketch13.MapMode = "FlatFace"
sketch13.AttachmentOffset = App.Placement(V(0, 0, 110), App.Rotation())
sketch13.addGeometry([
    Part.LineSegment(V(426, 320, 0), V(426, 288, 0)),
    Part.LineSegment(V(426, 288, 0), V(483, 288, 0)),
    Part.LineSegment(V(483, 288, 0), V(483, 320, 0)),
    Part.LineSegment(V(483, 320, 0), V(426, 320, 0)),
], False)
sketch13.addConstraint([
    Sketcher.Constraint("Coincident", 0, 2, 1, 1),
    Sketcher.Constraint("Coincident", 1, 2, 2, 1),
    Sketcher.Constraint("Coincident", 2, 2, 3, 1),
    Sketcher.Constraint("Coincident", 3, 2, 0, 1),
    Sketcher.Constraint("Vertical", 0),
    Sketcher.Constraint("Horizontal", 1),
    Sketcher.Constraint("Vertical", 2),
    Sketcher.Constraint("Horizontal", 3),
    Sketcher.Constraint("DistanceX", 1, 1, 1, 2, Q("57 mm")),
    Sketcher.Constraint("DistanceY", 0, 2, 0, 1, Q("32 mm")),
    Sketcher.Constraint("DistanceX", -1, 1, 0, 2, Q("426 mm")),
    Sketcher.Constraint("DistanceY", -1, 1, 0, 2, Q("288 mm")),
])
pad11 = body11.newObject("PartDesign::Pad", "Pad010")
pad11.Profile = sketch13
pad11.Length = 5
body12 = doc.addObject("PartDesign::Body", "Body011")

sketch14 = body12.newObject("Sketcher::SketchObject", "Sketch013")
sketch14.AttachmentSupport = (doc.getObject("XY_Plane011"), [""])
sketch14.MapMode = "FlatFace"
sketch14.AttachmentOffset = App.Placement(V(0, 0, 110), App.Rotation())
sketch14.addGeometry([
    Part.LineSegment(V(339, 320, 0), V(339, 288, 0)),
    Part.LineSegment(V(339, 288, 0), V(396, 288, 0)),
    Part.LineSegment(V(396, 288, 0), V(396, 320, 0)),
    Part.LineSegment(V(396, 320, 0), V(339, 320, 0)),
], False)
sketch14.addConstraint([
    Sketcher.Constraint("Coincident", 0, 2, 1, 1),
    Sketcher.Constraint("Coincident", 1, 2, 2, 1),
    Sketcher.Constraint("Coincident", 2, 2, 3, 1),
    Sketcher.Constraint("Coincident", 3, 2, 0, 1),
    Sketcher.Constraint("Vertical", 0),
    Sketcher.Constraint("Horizontal", 1),
    Sketcher.Constraint("Vertical", 2),
    Sketcher.Constraint("Horizontal", 3),
    Sketcher.Constraint("DistanceX", 1, 1, 1, 2, Q("57 mm")),
    Sketcher.Constraint("DistanceY", 0, 2, 0, 1, Q("32 mm")),
    Sketcher.Constraint("DistanceX", -1, 1, 0, 2, Q("339 mm")),
    Sketcher.Constraint("DistanceY", -1, 1, 0, 2, Q("288 mm")),
])
pad12 = body12.newObject("PartDesign::Pad", "Pad011")
pad12.Profile = sketch14
pad12.Length = 5

doc.recompute()
